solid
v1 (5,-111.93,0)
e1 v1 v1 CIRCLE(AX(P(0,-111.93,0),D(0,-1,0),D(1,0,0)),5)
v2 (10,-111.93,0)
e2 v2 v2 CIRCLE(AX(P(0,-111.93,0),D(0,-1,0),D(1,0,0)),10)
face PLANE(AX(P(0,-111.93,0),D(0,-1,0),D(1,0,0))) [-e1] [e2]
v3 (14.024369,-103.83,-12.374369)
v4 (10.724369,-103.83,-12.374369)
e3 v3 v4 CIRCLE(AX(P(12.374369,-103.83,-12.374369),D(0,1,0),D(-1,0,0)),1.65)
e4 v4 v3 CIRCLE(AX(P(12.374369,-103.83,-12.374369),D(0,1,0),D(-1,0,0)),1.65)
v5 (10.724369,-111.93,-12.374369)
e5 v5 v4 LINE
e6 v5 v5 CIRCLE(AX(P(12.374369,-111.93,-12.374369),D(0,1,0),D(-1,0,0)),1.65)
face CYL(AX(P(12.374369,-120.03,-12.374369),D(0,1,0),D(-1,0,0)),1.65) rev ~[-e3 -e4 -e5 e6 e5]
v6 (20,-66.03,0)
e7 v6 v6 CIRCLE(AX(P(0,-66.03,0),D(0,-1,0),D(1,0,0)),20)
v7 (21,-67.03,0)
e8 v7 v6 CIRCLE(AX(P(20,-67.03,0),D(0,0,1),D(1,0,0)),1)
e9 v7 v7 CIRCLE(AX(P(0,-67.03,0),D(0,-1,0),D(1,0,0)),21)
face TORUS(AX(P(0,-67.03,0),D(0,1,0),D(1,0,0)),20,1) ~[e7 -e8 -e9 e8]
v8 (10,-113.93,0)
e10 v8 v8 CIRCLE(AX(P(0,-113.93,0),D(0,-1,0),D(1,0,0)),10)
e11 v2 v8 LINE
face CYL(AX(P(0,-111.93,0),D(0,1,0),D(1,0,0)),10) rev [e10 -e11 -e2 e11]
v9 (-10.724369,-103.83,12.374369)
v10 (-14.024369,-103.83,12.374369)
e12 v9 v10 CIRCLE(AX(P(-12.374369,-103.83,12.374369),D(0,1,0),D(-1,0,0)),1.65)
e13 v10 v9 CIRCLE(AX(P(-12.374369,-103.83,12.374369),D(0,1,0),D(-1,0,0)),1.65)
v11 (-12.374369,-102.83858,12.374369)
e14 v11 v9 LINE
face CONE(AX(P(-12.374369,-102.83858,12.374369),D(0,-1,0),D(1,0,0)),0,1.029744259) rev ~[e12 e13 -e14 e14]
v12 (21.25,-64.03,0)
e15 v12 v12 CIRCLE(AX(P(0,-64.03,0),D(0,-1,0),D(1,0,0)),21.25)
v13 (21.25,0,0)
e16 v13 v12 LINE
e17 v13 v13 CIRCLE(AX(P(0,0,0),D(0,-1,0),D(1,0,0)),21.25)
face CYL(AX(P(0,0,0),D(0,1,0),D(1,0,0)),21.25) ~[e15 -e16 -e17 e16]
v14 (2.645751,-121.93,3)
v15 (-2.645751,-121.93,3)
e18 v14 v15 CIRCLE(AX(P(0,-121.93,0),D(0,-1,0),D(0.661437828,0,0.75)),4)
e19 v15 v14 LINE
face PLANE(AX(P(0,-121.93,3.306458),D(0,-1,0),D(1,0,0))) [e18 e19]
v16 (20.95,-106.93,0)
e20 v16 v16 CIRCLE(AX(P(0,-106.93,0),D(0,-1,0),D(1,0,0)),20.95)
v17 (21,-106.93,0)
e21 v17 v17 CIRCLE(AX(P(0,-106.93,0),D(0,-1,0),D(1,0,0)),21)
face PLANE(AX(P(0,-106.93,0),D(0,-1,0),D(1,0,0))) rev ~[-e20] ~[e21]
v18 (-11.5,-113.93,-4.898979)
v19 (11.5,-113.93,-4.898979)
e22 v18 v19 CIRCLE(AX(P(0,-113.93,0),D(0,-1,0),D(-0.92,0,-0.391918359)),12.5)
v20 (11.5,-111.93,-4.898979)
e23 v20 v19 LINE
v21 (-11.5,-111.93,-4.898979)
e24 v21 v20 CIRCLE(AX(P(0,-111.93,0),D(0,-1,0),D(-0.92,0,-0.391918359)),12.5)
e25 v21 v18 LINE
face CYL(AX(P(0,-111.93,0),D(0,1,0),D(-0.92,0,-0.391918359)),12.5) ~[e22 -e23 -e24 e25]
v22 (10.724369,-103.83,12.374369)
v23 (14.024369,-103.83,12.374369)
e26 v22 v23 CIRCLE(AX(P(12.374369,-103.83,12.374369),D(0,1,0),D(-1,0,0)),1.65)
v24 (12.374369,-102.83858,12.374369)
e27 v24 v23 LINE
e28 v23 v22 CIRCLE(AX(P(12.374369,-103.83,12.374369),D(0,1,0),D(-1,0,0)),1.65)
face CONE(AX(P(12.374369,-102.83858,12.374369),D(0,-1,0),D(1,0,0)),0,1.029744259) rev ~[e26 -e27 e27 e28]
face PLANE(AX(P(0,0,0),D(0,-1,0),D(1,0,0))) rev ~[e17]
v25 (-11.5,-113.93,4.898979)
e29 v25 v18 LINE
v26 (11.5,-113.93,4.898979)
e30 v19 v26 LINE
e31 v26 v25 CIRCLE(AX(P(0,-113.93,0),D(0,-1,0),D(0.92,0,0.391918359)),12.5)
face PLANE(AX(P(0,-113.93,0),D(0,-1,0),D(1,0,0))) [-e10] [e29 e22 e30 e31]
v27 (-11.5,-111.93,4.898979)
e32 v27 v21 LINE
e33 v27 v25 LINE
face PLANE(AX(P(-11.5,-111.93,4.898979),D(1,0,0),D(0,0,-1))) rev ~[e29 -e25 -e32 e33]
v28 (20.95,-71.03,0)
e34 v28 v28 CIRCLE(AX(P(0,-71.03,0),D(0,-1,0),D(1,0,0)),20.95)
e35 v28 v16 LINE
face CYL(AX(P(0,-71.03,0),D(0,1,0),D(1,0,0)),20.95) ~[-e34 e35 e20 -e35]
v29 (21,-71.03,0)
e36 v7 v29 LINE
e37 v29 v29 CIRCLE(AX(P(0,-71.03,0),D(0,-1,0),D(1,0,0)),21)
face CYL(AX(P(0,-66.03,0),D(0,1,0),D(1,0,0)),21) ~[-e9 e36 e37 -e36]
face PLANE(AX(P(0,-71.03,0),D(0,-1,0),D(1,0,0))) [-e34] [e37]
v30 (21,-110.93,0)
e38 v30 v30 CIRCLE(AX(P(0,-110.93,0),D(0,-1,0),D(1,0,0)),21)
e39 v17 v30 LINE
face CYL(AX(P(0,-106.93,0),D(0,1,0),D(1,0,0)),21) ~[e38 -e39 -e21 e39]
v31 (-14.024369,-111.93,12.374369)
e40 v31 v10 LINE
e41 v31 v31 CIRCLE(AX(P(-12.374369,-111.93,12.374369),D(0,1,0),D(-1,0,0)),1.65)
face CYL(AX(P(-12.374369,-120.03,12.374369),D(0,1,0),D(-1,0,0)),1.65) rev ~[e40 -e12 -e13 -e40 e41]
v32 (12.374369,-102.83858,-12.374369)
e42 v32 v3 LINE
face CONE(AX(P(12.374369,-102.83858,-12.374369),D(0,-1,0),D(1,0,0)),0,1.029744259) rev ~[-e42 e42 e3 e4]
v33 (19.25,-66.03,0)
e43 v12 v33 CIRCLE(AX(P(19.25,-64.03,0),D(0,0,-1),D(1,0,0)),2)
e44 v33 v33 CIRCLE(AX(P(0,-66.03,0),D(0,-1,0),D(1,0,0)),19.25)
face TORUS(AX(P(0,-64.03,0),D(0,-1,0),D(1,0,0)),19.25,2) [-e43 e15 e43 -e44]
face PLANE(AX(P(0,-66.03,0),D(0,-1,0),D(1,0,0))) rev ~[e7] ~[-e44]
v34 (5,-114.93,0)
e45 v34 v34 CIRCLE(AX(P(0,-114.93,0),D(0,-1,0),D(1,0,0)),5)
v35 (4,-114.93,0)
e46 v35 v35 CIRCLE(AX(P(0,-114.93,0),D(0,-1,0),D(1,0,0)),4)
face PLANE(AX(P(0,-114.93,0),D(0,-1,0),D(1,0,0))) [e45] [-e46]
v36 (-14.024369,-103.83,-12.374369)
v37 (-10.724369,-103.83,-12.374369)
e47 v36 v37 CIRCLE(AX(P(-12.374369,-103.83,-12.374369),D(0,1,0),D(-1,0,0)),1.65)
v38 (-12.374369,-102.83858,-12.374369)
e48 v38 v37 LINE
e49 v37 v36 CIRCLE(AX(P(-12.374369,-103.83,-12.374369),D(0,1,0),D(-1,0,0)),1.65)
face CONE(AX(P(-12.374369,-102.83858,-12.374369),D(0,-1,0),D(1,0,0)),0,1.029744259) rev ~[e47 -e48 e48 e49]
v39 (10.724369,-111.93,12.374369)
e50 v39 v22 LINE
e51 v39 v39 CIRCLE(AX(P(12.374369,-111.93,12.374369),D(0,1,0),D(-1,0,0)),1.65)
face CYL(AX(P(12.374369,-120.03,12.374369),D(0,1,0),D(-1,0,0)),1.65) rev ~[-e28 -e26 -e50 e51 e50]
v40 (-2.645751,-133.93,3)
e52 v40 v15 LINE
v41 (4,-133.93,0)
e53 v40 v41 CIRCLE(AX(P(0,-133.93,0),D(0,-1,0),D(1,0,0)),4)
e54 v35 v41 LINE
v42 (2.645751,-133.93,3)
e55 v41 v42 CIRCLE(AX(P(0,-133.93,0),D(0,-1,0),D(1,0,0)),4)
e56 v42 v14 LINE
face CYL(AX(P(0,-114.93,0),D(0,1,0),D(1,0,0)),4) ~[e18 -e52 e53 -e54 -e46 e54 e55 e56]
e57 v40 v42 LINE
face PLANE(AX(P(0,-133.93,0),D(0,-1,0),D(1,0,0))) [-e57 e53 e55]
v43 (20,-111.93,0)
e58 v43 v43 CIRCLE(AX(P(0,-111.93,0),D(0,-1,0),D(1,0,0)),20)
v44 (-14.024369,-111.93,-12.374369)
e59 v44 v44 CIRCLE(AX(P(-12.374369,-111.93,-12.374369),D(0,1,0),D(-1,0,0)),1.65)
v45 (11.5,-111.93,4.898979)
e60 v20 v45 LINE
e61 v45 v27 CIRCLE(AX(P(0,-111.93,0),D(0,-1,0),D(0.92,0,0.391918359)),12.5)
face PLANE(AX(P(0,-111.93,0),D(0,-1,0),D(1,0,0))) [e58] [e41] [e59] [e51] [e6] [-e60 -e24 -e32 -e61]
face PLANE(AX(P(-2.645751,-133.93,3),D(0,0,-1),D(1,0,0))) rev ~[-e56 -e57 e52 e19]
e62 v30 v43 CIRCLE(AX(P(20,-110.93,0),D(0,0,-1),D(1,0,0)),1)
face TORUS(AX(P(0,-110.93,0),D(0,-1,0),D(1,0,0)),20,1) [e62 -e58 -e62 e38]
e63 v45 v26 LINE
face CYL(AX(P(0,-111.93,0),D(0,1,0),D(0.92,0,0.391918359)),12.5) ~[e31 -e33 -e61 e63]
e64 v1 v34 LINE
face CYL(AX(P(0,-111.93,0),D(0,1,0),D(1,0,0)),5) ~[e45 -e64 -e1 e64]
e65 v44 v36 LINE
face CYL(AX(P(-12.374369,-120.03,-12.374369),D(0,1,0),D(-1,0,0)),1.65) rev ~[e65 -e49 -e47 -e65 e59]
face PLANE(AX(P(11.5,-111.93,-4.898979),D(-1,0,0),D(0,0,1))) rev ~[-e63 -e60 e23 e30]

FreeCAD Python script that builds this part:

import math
import FreeCAD as App
import Part
import Sketcher
Q = App.Units.Quantity


def edges_at(feature, points):
    """Names of the edges that pass closest to the given points."""
    edges = feature.Shape.Edges
    near = lambda p: min(range(len(edges)), key=lambda i: edges[i].distToShape(Part.Vertex(*p))[0])
    return sorted({f"Edge{near(p) + 1}" for p in points})

doc = App.newDocument("Part")
params = doc.addObject("Spreadsheet::Sheet", "Params")
for row, (alias, value) in enumerate([
    ("sketch1_diameter", "42.5 mm"),
    ("pad1_length", "66.03 mm"),
    ("fillet_radius", "2 mm"),
    ("sketch2_diameter", "42 mm"),
    ("pad2_length", "5 mm"),
    ("sketch3_diameter", "41.9 mm"),
    ("pad3_length", "35.9 mm"),
    ("sketch4_diameter", "42 mm"),
    ("pad4_length", "5 mm"),
    ("sketch5_diameter", "20 mm"),
    ("sketch5_radius", "12.5 mm"),
    ("pad5_length", "2 mm"),
    ("sketch6_diameter", "10 mm"),
    ("pad6_length", "3 mm"),
    ("sketch7_diameter", "8 mm"),
    ("pad7_length", "19 mm"),
    ("sketch8_radius", "4 mm"),
    ("pocket1_length", "12 mm"),
    ("sketch9_diameter", "3.3 mm"),
    ("hole_diameter", "3.3 mm"),
    ("hole_depth", "8.1 mm"),
    ("fillet2_radius", "1 mm"),
], start=1):
    params.set(f"A{row}", alias)
    params.set(f"B{row}", "=" + value)
    params.setAlias(f"B{row}", alias)

body = doc.addObject("PartDesign::Body", "Body")

# Sketch on XZ plane
sketch1 = body.newObject("Sketcher::SketchObject", "Sketch")
sketch1.AttachmentSupport = (doc.getObject("XZ_Plane"), [""])
sketch1.MapMode = "FlatFace"
sketch1.addGeometry(Part.Circle(App.Vector(0, 0, 0), App.Vector(0, 0, 1), 21), False)
sketch1.addConstraint(Sketcher.Constraint("Coincident", 0, 3, -1, 1))
sketch1.addConstraint(Sketcher.Constraint("Diameter", 0, Q("42.5 mm")))
sketch1.setExpression("Constraints[1]", "Params.sketch1_diameter")
pad1 = body.newObject("PartDesign::Pad", "Pad")
pad1.Profile = sketch1
pad1.setExpression("Length", "Params.pad1_length")
doc.recompute()

fillet = body.newObject("PartDesign::Fillet", "Fillet")
fillet.Base = (pad1, edges_at(pad1, [(-21.25, -66.03, 0)]))
fillet.setExpression("Radius", "Params.fillet_radius")

# Sketch on XZ plane
sketch2 = body.newObject("Sketcher::SketchObject", "Sketch001")
sketch2.AttachmentSupport = (doc.getObject("XZ_Plane"), [""])
sketch2.MapMode = "FlatFace"
sketch2.AttachmentOffset = App.Placement(App.Vector(0, 0, 66.03), App.Rotation())
sketch2.addGeometry(Part.Circle(App.Vector(0, 0, 0), App.Vector(0, 0, 1), 21), False)
sketch2.addConstraint(Sketcher.Constraint("Coincident", 0, 3, -1, 1))
sketch2.addConstraint(Sketcher.Constraint("Diameter", 0, Q("42 mm")))
sketch2.setExpression("Constraints[1]", "Params.sketch2_diameter")
pad2 = body.newObject("PartDesign::Pad", "Pad001")
pad2.Profile = sketch2
pad2.setExpression("Length", "Params.pad2_length")

# Sketch on XZ plane
sketch3 = body.newObject("Sketcher::SketchObject", "Sketch002")
sketch3.AttachmentSupport = (doc.getObject("XZ_Plane"), [""])
sketch3.MapMode = "FlatFace"
sketch3.AttachmentOffset = App.Placement(App.Vector(0, 0, 71.03), App.Rotation())
sketch3.addGeometry(Part.Circle(App.Vector(0, 0, 0), App.Vector(0, 0, 1), 21), False)
sketch3.addConstraint(Sketcher.Constraint("Coincident", 0, 3, -1, 1))
sketch3.addConstraint(Sketcher.Constraint("Diameter", 0, Q("41.9 mm")))
sketch3.setExpression("Constraints[1]", "Params.sketch3_diameter")
pad3 = body.newObject("PartDesign::Pad", "Pad002")
pad3.Profile = sketch3
pad3.setExpression("Length", "Params.pad3_length")

# Sketch on XZ plane
sketch4 = body.newObject("Sketcher::SketchObject", "Sketch003")
sketch4.AttachmentSupport = (doc.getObject("XZ_Plane"), [""])
sketch4.MapMode = "FlatFace"
sketch4.AttachmentOffset = App.Placement(App.Vector(0, 0, 106.93), App.Rotation())
sketch4.addGeometry(Part.Circle(App.Vector(0, 0, 0), App.Vector(0, 0, 1), 21), False)
sketch4.addConstraint(Sketcher.Constraint("Coincident", 0, 3, -1, 1))
sketch4.addConstraint(Sketcher.Constraint("Diameter", 0, Q("42 mm")))
sketch4.setExpression("Constraints[1]", "Params.sketch4_diameter")
pad4 = body.newObject("PartDesign::Pad", "Pad003")
pad4.Profile = sketch4
pad4.setExpression("Length", "Params.pad4_length")

# Sketch on XZ plane
sketch5 = body.newObject("Sketcher::SketchObject", "Sketch004")
sketch5.AttachmentSupport = (doc.getObject("XZ_Plane"), [""])
sketch5.MapMode = "FlatFace"
sketch5.AttachmentOffset = App.Placement(App.Vector(0, 0, 111.93), App.Rotation())
sketch5.addGeometry(Part.LineSegment(App.Vector(12, -5, 0), App.Vector(12, 5, 0)), False)
sketch5.addGeometry(Part.ArcOfCircle(Part.Circle(App.Vector(0, 0, 0), App.Vector(0, 0, 1), 12), math.radians(23), math.radians(157)), False)
sketch5.addGeometry(Part.LineSegment(App.Vector(-12, 5, 0), App.Vector(-12, -5, 0)), False)
sketch5.addGeometry(Part.ArcOfCircle(Part.Circle(App.Vector(0, 0, 0), App.Vector(0, 0, 1), 12), math.radians(-157), math.radians(-23)), False)
sketch5.addGeometry(Part.Circle(App.Vector(0, 0, 0), App.Vector(0, 0, 1), 10), False)
sketch5.addConstraint(Sketcher.Constraint("Coincident", 0, 2, 1, 1))
sketch5.addConstraint(Sketcher.Constraint("Coincident", 1, 2, 2, 1))
sketch5.addConstraint(Sketcher.Constraint("Coincident", 2, 2, 3, 1))
sketch5.addConstraint(Sketcher.Constraint("Coincident", 3, 2, 0, 1))
sketch5.addConstraint(Sketcher.Constraint("Vertical", 0))
sketch5.addConstraint(Sketcher.Constraint("Vertical", 2))
sketch5.addConstraint(Sketcher.Constraint("Coincident", 1, 3, -1, 1))
sketch5.addConstraint(Sketcher.Constraint("Coincident", 3, 3, -1, 1))
sketch5.addConstraint(Sketcher.Constraint("Coincident", 4, 3, -1, 1))
sketch5.addConstraint(Sketcher.Constraint("Equal", 1, 3))
sketch5.addConstraint(Sketcher.Constraint("Horizontal", 0, 2, 1, 2))
sketch5.addConstraint(Sketcher.Constraint("Diameter", 4, Q("20 mm")))
sketch5.addConstraint(Sketcher.Constraint("Radius", 1, Q("12.5 mm")))
sketch5.addConstraint(Sketcher.Constraint("DistanceX", 1, 2, 0, 2, Q("23 mm")))
sketch5.setExpression("Constraints[11]", "Params.sketch5_diameter")
sketch5.setExpression("Constraints[12]", "Params.sketch5_radius")
pad5 = body.newObject("PartDesign::Pad", "Pad004")
pad5.Profile = sketch5
pad5.setExpression("Length", "Params.pad5_length")

# Sketch on XZ plane
sketch6 = body.newObject("Sketcher::SketchObject", "Sketch005")
sketch6.AttachmentSupport = (doc.getObject("XZ_Plane"), [""])
sketch6.MapMode = "FlatFace"
sketch6.AttachmentOffset = App.Placement(App.Vector(0, 0, 111.93), App.Rotation())
sketch6.addGeometry(Part.Circle(App.Vector(0, 0, 0), App.Vector(0, 0, 1), 5), False)
sketch6.addConstraint(Sketcher.Constraint("Coincident", 0, 3, -1, 1))
sketch6.addConstraint(Sketcher.Constraint("Diameter", 0, Q("10 mm")))
sketch6.setExpression("Constraints[1]", "Params.sketch6_diameter")
pad6 = body.newObject("PartDesign::Pad", "Pad005")
pad6.Profile = sketch6
pad6.setExpression("Length", "Params.pad6_length")

# Sketch on XZ plane
sketch7 = body.newObject("Sketcher::SketchObject", "Sketch006")
sketch7.AttachmentSupport = (doc.getObject("XZ_Plane"), [""])
sketch7.MapMode = "FlatFace"
sketch7.AttachmentOffset = App.Placement(App.Vector(0, 0, 114.93), App.Rotation())
sketch7.addGeometry(Part.Circle(App.Vector(0, 0, 0), App.Vector(0, 0, 1), 4), False)
sketch7.addConstraint(Sketcher.Constraint("Coincident", 0, 3, -1, 1))
sketch7.addConstraint(Sketcher.Constraint("Diameter", 0, Q("8 mm")))
sketch7.setExpression("Constraints[1]", "Params.sketch7_diameter")
pad7 = body.newObject("PartDesign::Pad", "Pad006")
pad7.Profile = sketch7
pad7.setExpression("Length", "Params.pad7_length")

# Sketch on XZ plane
sketch8 = body.newObject("Sketcher::SketchObject", "Sketch007")
sketch8.AttachmentSupport = (doc.getObject("XZ_Plane"), [""])
sketch8.MapMode = "FlatFace"
sketch8.AttachmentOffset = App.Placement(App.Vector(0, 0, 133.93), App.Rotation())
sketch8.addGeometry(Part.LineSegment(App.Vector(-2.6, 3, 0), App.Vector(2.6, 3, 0)), False)
sketch8.addGeometry(Part.ArcOfCircle(Part.Circle(App.Vector(0, 0, 0), App.Vector(0, 0, 1), 4), math.radians(49), math.radians(131)), False)
sketch8.addConstraint(Sketcher.Constraint("Coincident", 0, 1, 1, 2))
sketch8.addConstraint(Sketcher.Constraint("Coincident", 1, 1, 0, 2))
sketch8.addConstraint(Sketcher.Constraint("Horizontal", 0))
sketch8.addConstraint(Sketcher.Constraint("Coincident", 1, 3, -1, 1))
sketch8.addConstraint(Sketcher.Constraint("Radius", 1, Q("4 mm")))
sketch8.addConstraint(Sketcher.Constraint("DistanceY", -1, 1, 0, 1, Q("3 mm")))
sketch8.setExpression("Constraints[4]", "Params.sketch8_radius")
pocket1 = body.newObject("PartDesign::Pocket", "Pocket")
pocket1.Profile = sketch8
pocket1.setExpression("Length", "Params.pocket1_length")

# Sketch on XZ plane
sketch9 = body.newObject("Sketcher::SketchObject", "Sketch008")
sketch9.AttachmentSupport = (doc.getObject("XZ_Plane"), [""])
sketch9.MapMode = "FlatFace"
sketch9.AttachmentOffset = App.Placement(App.Vector(0, 0, 111.93), App.Rotation())
sketch9.addGeometry(Part.Circle(App.Vector(-12.4, 12.4, 0), App.Vector(0, 0, 1), 1.6), False)
sketch9.addGeometry(Part.Circle(App.Vector(12.4, 12.4, 0), App.Vector(0, 0, 1), 1.6), False)
sketch9.addGeometry(Part.Circle(App.Vector(12.4, -12.4, 0), App.Vector(0, 0, 1), 1.6), False)
sketch9.addGeometry(Part.Circle(App.Vector(-12.4, -12.4, 0), App.Vector(0, 0, 1), 1.6), False)
sketch9.addConstraint(Sketcher.Constraint("Equal", 0, 1))
sketch9.addConstraint(Sketcher.Constraint("Equal", 1, 2))
sketch9.addConstraint(Sketcher.Constraint("Equal", 2, 3))
sketch9.addConstraint(Sketcher.Constraint("Symmetric", 0, 3, 2, 3, -1, 1))
sketch9.addConstraint(Sketcher.Constraint("Symmetric", 1, 3, 3, 3, -1, 1))
sketch9.addConstraint(Sketcher.Constraint("Symmetric", 0, 3, 1, 3, -2))
sketch9.addConstraint(Sketcher.Constraint("Diameter", 0, Q("3.3 mm")))
sketch9.addConstraint(Sketcher.Constraint("DistanceX", 0, 3, -1, 1, Q("12.374369 mm")))
sketch9.addConstraint(Sketcher.Constraint("DistanceY", -1, 1, 0, 3, Q("12.374369 mm")))
sketch9.setExpression("Constraints[6]", "Params.sketch9_diameter")
doc.recompute()
hole = body.newObject("PartDesign::Hole", "Hole")
hole.Profile = sketch9
hole.ThreadType = "None"
hole.setExpression("Diameter", "Params.hole_diameter")
hole.DepthType = "Dimension"
hole.setExpression("Depth", "Params.hole_depth")
hole.DrillPoint = "Angled"
hole.DrillPointAngle = 118
doc.recompute()

fillet2 = body.newObject("PartDesign::Fillet", "Fillet001")
fillet2.Base = (hole, edges_at(hole, [(-21, -66.03, 0), (-21, -111.93, 0)]))
fillet2.setExpression("Radius", "Params.fillet2_radius")

doc.recompute()
